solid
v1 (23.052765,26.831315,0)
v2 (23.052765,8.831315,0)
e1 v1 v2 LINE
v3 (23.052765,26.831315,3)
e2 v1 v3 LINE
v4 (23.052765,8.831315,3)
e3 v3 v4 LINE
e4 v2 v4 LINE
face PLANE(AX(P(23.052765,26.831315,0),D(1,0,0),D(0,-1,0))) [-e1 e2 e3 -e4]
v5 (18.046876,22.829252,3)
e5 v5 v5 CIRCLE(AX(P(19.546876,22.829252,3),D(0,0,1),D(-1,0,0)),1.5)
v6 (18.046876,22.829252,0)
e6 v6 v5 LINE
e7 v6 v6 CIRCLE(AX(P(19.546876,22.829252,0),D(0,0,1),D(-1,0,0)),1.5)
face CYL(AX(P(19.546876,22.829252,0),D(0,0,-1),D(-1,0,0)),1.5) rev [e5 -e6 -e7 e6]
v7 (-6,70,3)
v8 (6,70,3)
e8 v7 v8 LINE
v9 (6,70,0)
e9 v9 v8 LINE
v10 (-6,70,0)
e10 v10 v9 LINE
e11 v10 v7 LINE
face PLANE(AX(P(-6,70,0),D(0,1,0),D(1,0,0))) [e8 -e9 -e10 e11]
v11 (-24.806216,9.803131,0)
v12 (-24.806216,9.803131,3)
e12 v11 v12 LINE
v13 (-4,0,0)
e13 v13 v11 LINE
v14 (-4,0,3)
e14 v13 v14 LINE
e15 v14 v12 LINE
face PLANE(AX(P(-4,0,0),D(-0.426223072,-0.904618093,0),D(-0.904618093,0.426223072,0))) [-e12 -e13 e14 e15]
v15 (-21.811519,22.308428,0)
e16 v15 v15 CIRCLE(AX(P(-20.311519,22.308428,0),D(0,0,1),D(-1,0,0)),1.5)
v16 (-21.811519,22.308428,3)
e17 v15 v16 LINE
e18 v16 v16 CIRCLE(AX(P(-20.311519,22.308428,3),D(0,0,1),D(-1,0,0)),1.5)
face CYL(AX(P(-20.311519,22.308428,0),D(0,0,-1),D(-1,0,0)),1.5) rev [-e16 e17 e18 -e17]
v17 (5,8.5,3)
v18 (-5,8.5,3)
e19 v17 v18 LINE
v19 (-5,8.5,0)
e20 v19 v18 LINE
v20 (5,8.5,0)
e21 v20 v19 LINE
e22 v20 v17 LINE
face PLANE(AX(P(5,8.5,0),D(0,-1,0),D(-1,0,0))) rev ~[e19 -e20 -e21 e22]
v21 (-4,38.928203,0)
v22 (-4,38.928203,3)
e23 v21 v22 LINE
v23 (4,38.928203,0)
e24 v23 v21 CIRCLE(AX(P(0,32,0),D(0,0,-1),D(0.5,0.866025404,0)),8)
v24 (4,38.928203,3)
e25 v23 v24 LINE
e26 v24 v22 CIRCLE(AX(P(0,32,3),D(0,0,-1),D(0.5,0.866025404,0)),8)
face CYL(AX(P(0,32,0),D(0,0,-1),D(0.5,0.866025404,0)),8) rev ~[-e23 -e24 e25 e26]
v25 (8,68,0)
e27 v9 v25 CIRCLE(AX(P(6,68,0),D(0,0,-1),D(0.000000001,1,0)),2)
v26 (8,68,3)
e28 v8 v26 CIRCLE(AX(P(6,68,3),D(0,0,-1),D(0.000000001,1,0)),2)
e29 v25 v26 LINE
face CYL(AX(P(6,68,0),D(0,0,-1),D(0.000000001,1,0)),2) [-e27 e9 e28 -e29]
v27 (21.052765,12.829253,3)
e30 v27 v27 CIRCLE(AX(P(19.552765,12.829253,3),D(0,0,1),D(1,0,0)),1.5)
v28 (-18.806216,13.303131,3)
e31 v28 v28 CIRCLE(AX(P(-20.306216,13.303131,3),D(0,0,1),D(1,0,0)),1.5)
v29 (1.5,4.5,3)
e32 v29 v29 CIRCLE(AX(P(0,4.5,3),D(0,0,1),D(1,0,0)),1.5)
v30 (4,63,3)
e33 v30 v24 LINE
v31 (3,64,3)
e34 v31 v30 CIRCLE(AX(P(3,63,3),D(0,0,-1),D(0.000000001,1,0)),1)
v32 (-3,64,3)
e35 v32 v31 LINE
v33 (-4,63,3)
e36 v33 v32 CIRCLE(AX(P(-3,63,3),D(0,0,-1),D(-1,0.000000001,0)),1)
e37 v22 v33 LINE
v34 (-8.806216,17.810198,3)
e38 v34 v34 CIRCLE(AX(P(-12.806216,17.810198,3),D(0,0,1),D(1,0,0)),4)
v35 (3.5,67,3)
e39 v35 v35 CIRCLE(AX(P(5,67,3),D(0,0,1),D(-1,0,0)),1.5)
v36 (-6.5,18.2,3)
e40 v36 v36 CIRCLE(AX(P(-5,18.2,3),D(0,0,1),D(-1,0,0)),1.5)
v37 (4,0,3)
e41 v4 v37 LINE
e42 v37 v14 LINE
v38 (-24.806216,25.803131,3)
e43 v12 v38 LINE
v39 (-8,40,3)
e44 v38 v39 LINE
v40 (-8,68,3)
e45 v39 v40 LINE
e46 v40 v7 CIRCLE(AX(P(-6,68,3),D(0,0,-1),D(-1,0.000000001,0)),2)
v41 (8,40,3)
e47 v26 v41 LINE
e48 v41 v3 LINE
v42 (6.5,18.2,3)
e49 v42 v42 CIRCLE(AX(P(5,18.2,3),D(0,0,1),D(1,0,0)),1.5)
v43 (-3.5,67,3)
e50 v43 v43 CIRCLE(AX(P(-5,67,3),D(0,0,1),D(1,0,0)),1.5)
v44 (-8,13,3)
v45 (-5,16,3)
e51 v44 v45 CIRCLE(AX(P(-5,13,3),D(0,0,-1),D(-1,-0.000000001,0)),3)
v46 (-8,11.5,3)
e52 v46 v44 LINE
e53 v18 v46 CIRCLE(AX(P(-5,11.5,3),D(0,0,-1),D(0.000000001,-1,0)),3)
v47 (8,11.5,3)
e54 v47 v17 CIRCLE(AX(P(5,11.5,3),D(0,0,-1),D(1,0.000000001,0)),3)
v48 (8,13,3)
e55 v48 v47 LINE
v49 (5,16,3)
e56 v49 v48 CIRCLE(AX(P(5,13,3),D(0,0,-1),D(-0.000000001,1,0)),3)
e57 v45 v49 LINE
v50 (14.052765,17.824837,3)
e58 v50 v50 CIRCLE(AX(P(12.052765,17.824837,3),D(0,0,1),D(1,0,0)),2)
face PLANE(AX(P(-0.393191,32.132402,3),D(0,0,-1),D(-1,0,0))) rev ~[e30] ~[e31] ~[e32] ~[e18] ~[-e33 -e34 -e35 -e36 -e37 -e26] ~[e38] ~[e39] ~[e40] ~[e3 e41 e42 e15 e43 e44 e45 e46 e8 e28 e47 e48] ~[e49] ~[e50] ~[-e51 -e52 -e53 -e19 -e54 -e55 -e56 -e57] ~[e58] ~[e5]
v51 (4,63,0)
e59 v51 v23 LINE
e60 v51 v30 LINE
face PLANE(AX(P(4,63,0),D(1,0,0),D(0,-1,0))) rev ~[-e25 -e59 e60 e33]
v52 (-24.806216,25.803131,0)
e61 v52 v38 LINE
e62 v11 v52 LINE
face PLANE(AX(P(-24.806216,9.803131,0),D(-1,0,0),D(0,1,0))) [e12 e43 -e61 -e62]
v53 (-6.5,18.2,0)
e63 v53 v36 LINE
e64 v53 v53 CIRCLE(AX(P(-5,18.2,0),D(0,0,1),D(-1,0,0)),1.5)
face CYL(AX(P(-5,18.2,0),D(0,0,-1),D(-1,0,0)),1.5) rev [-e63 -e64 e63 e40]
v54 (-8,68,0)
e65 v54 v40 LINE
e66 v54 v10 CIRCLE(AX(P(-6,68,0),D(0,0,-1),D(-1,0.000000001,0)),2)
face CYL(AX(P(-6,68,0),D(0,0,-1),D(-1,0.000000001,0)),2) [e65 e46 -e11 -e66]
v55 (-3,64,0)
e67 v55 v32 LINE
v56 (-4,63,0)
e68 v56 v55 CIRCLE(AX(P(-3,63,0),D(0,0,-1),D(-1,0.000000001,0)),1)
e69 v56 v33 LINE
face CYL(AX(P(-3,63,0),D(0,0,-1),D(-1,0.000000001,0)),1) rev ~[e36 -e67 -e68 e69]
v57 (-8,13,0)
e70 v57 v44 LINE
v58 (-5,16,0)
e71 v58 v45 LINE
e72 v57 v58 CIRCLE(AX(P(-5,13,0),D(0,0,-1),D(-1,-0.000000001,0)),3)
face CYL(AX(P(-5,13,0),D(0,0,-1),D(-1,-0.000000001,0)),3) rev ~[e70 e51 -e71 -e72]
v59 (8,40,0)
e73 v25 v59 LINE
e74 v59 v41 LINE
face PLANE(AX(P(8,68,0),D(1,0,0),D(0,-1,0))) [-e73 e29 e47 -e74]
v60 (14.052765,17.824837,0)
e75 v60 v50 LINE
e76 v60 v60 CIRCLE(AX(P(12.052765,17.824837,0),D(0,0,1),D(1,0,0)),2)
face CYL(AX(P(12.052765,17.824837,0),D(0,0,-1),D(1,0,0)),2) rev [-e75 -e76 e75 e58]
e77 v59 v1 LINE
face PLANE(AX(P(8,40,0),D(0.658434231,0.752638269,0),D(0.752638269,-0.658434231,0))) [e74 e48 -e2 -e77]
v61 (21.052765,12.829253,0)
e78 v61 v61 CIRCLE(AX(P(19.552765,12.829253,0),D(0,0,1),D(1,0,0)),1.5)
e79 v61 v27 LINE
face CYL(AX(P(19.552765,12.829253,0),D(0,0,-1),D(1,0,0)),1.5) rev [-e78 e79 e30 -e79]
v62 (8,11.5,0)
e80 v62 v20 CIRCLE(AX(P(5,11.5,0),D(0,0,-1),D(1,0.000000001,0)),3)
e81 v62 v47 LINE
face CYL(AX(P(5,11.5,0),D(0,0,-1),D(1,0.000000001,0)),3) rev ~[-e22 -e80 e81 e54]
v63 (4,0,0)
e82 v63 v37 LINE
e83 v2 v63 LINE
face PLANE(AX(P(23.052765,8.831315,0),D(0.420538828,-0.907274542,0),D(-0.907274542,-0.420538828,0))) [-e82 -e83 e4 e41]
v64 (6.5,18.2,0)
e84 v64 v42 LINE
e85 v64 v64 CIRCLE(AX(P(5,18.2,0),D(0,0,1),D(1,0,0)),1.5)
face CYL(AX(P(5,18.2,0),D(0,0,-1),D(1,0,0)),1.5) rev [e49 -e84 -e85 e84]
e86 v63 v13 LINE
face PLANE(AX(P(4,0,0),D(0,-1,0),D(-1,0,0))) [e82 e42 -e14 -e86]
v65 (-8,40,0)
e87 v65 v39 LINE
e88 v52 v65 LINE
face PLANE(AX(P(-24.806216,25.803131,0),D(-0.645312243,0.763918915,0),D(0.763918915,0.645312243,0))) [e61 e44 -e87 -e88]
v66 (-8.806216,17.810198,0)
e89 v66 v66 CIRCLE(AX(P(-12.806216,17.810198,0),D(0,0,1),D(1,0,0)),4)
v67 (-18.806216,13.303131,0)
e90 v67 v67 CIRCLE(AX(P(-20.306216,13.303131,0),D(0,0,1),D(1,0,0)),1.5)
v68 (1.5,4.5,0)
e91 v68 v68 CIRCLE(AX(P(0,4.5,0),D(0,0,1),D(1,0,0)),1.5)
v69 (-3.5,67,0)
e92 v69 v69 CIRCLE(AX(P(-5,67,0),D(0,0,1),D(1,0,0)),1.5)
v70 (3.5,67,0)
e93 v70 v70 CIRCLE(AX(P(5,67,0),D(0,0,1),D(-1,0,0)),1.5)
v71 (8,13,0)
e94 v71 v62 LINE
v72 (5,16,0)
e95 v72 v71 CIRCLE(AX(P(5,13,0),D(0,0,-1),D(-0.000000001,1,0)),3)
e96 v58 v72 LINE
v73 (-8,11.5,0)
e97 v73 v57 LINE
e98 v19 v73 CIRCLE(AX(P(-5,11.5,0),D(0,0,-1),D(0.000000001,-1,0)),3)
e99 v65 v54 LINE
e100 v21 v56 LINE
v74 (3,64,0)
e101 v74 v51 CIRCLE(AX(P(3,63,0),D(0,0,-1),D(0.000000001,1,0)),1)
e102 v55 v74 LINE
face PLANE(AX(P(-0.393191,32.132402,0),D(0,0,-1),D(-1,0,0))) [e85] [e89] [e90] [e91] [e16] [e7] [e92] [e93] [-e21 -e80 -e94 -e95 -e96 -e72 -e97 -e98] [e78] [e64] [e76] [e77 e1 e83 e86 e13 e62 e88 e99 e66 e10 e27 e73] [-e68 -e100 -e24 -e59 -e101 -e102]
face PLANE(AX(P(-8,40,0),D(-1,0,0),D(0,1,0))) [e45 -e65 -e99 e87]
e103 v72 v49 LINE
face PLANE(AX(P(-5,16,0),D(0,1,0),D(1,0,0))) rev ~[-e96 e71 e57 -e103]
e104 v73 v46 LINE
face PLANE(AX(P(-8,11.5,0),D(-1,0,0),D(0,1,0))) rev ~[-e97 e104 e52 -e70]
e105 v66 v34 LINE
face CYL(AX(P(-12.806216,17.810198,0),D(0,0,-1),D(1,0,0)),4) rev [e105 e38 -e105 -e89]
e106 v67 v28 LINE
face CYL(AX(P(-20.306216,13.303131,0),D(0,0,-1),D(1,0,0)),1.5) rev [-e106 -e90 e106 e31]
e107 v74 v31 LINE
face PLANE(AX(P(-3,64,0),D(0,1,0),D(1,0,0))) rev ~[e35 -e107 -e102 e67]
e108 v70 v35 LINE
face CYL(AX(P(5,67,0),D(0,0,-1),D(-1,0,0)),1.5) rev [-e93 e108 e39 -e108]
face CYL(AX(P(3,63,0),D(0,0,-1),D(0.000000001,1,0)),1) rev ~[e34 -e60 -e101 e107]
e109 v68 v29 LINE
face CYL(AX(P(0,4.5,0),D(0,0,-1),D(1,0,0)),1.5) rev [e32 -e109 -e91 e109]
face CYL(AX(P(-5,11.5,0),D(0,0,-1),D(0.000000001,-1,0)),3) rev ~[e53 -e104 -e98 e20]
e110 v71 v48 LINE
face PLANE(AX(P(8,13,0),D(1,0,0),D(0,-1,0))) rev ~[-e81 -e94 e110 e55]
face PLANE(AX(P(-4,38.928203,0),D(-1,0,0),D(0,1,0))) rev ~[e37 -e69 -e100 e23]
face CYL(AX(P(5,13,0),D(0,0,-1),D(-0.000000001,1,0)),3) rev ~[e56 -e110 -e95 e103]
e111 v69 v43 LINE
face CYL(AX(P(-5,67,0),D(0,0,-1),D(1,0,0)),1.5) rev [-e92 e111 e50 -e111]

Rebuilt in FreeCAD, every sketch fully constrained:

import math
import FreeCAD as App
import Part
import Sketcher
Q = App.Units.Quantity

doc = App.newDocument("Part")
params = doc.addObject("Spreadsheet::Sheet", "Params")
for row, (alias, value) in enumerate([
    ("sketch1_diameter", "3 mm"),
    ("sketch1_diameter2", "4 mm"),
    ("sketch1_diameter3", "8 mm"),
    ("sketch1_radius", "3 mm"),
    ("sketch1_radius2", "1 mm"),
    ("pad1_length", "3 mm"),
], start=1):
    params.set(f"A{row}", alias)
    params.set(f"B{row}", "=" + value)
    params.setAlias(f"B{row}", alias)

body = doc.addObject("PartDesign::Body", "Body")

# Sketch on XY plane
sketch1 = body.newObject("Sketcher::SketchObject", "Sketch")
sketch1.AttachmentSupport = (doc.getObject("XY_Plane"), [""])
sketch1.MapMode = "FlatFace"
sketch1.addGeometry([
    Part.LineSegment(App.Vector(6, 70, 0), App.Vector(-6, 70, 0)),  # 0
    Part.ArcOfCircle(Part.Circle(App.Vector(-6, 68, 0), App.Vector(0, 0, 1), 2), math.radians(90), math.radians(180)),  # 1
    Part.LineSegment(App.Vector(-8, 68, 0), App.Vector(-8, 40, 0)),  # 2
    Part.LineSegment(App.Vector(-8, 40, 0), App.Vector(-24.806216, 25.803131, 0)),  # 3
    Part.LineSegment(App.Vector(-24.806216, 25.803131, 0), App.Vector(-24.806216, 9.803131, 0)),  # 4
    Part.LineSegment(App.Vector(-24.806216, 9.803131, 0), App.Vector(-4, 0, 0)),  # 5
    Part.LineSegment(App.Vector(-4, 0, 0), App.Vector(4, 0, 0)),  # 6
    Part.LineSegment(App.Vector(4, 0, 0), App.Vector(23.052765, 8.831315, 0)),  # 7
    Part.LineSegment(App.Vector(23.052765, 8.831315, 0), App.Vector(23.052765, 26.831315, 0)),  # 8
    Part.LineSegment(App.Vector(23.052765, 26.831315, 0), App.Vector(8, 40, 0)),  # 9
    Part.LineSegment(App.Vector(8, 40, 0), App.Vector(8, 68, 0)),  # 10
    Part.ArcOfCircle(Part.Circle(App.Vector(6, 68, 0), App.Vector(0, 0, 1), 2), math.radians(0), math.radians(90)),  # 11
    Part.Circle(App.Vector(19.552765, 12.829253, 0), App.Vector(0, 0, 1), 1.5),  # 12
    Part.Circle(App.Vector(12.052765, 17.824837, 0), App.Vector(0, 0, 1), 2),  # 13
    Part.Circle(App.Vector(0, 4.5, 0), App.Vector(0, 0, 1), 1.5),  # 14
    Part.Circle(App.Vector(5, 18.2, 0), App.Vector(0, 0, 1), 1.5),  # 15
    Part.LineSegment(App.Vector(-5, 16, 0), App.Vector(5, 16, 0)),  # 16
    Part.ArcOfCircle(Part.Circle(App.Vector(5, 13, 0), App.Vector(0, 0, 1), 3), math.radians(0), math.radians(90)),  # 17
    Part.LineSegment(App.Vector(8, 13, 0), App.Vector(8, 11.5, 0)),  # 18
    Part.ArcOfCircle(Part.Circle(App.Vector(5, 11.5, 0), App.Vector(0, 0, 1), 3), math.radians(-90), math.radians(0)),  # 19
    Part.LineSegment(App.Vector(5, 8.5, 0), App.Vector(-5, 8.5, 0)),  # 20
    Part.ArcOfCircle(Part.Circle(App.Vector(-5, 11.5, 0), App.Vector(0, 0, 1), 3), math.radians(180), math.radians(270)),  # 21
    Part.LineSegment(App.Vector(-8, 11.5, 0), App.Vector(-8, 13, 0)),  # 22
    Part.ArcOfCircle(Part.Circle(App.Vector(-5, 13, 0), App.Vector(0, 0, 1), 3), math.radians(90), math.radians(180)),  # 23
    Part.Circle(App.Vector(19.546876, 22.829252, 0), App.Vector(0, 0, 1), 1.5),  # 24
    Part.Circle(App.Vector(-5, 18.2, 0), App.Vector(0, 0, 1), 1.5),  # 25
    Part.Circle(App.Vector(-12.806216, 17.810198, 0), App.Vector(0, 0, 1), 4),  # 26
    Part.Circle(App.Vector(-20.306216, 13.303131, 0), App.Vector(0, 0, 1), 1.5),  # 27
    Part.Circle(App.Vector(-20.311519, 22.308428, 0), App.Vector(0, 0, 1), 1.5),  # 28
    Part.LineSegment(App.Vector(-3, 64, 0), App.Vector(3, 64, 0)),  # 29
    Part.ArcOfCircle(Part.Circle(App.Vector(3, 63, 0), App.Vector(0, 0, 1), 1), math.radians(0), math.radians(90)),  # 30
    Part.LineSegment(App.Vector(4, 63, 0), App.Vector(4, 38.928203, 0)),  # 31
    Part.ArcOfCircle(Part.Circle(App.Vector(0, 32, 0), App.Vector(0, 0, 1), 8), math.radians(120), math.radians(420)),  # 32
    Part.LineSegment(App.Vector(-4, 38.928203, 0), App.Vector(-4, 63, 0)),  # 33
    Part.ArcOfCircle(Part.Circle(App.Vector(-3, 63, 0), App.Vector(0, 0, 1), 1), math.radians(90), math.radians(180)),  # 34
    Part.Circle(App.Vector(5, 67, 0), App.Vector(0, 0, 1), 1.5),  # 35
    Part.Circle(App.Vector(-5, 67, 0), App.Vector(0, 0, 1), 1.5),  # 36
], False)
sketch1.addConstraint([
    Sketcher.Constraint("Tangent", 0, 2, 1, 1),
    Sketcher.Constraint("Tangent", 1, 2, 2, 1),
    Sketcher.Constraint("Coincident", 2, 2, 3, 1),
    Sketcher.Constraint("Coincident", 3, 2, 4, 1),
    Sketcher.Constraint("Coincident", 4, 2, 5, 1),
    Sketcher.Constraint("Coincident", 5, 2, 6, 1),
    Sketcher.Constraint("Coincident", 6, 2, 7, 1),
    Sketcher.Constraint("Coincident", 7, 2, 8, 1),
    Sketcher.Constraint("Coincident", 8, 2, 9, 1),
    Sketcher.Constraint("Coincident", 9, 2, 10, 1),
    Sketcher.Constraint("Tangent", 10, 2, 11, 1),
    Sketcher.Constraint("Tangent", 11, 2, 0, 1),
    Sketcher.Constraint("Tangent", 16, 2, 17, 2),
    Sketcher.Constraint("Tangent", 17, 1, 18, 1),
    Sketcher.Constraint("Tangent", 18, 2, 19, 2),
    Sketcher.Constraint("Tangent", 19, 1, 20, 1),
    Sketcher.Constraint("Tangent", 20, 2, 21, 2),
    Sketcher.Constraint("Tangent", 21, 1, 22, 1),
    Sketcher.Constraint("Tangent", 22, 2, 23, 2),
    Sketcher.Constraint("Tangent", 23, 1, 16, 1),
    Sketcher.Constraint("Tangent", 29, 2, 30, 2),
    Sketcher.Constraint("Tangent", 30, 1, 31, 1),
    Sketcher.Constraint("Coincident", 31, 2, 32, 2),
    Sketcher.Constraint("Coincident", 32, 1, 33, 1),
    Sketcher.Constraint("Tangent", 33, 2, 34, 2),
    Sketcher.Constraint("Tangent", 34, 1, 29, 1),
    Sketcher.Constraint("Horizontal", 0),
    Sketcher.Constraint("Vertical", 2),
    Sketcher.Constraint("Vertical", 4),
    Sketcher.Constraint("Horizontal", 6),
    Sketcher.Constraint("Vertical", 8),
    Sketcher.Constraint("Vertical", 10),
    Sketcher.Constraint("Horizontal", 16),
    Sketcher.Constraint("Vertical", 18),
    Sketcher.Constraint("Horizontal", 20),
    Sketcher.Constraint("Vertical", 22),
    Sketcher.Constraint("Horizontal", 29),
    Sketcher.Constraint("Vertical", 31),
    Sketcher.Constraint("Vertical", 33),
    Sketcher.Constraint("Equal", 1, 11),
    Sketcher.Constraint("Equal", 11, 13),
    Sketcher.Constraint("Equal", 12, 14),
    Sketcher.Constraint("Equal", 14, 15),
    Sketcher.Constraint("Equal", 17, 19),
    Sketcher.Constraint("Equal", 19, 21),
    Sketcher.Constraint("Equal", 21, 23),
    Sketcher.Constraint("Equal", 15, 24),
    Sketcher.Constraint("Equal", 24, 25),
    Sketcher.Constraint("Equal", 25, 27),
    Sketcher.Constraint("Equal", 27, 28),
    Sketcher.Constraint("Equal", 30, 34),
    Sketcher.Constraint("Equal", 28, 35),
    Sketcher.Constraint("Equal", 35, 36),
    Sketcher.Constraint("Symmetric", 5, 2, 6, 2, -1, 1),
    Sketcher.Constraint("Symmetric", 15, 3, 25, 3, -2),
    Sketcher.Constraint("Symmetric", 35, 3, 36, 3, -2),
    Sketcher.Constraint("Symmetric", 2, 2, 9, 2, -2),
    Sketcher.Constraint("Symmetric", 31, 2, 32, 1, -2),
    Sketcher.Constraint("PointOnObject", 14, 3, -2),
    Sketcher.Constraint("Vertical", 15, 3, 17, 3),
    Sketcher.Constraint("Vertical", 23, 3, 25, 3),
    Sketcher.Constraint("Vertical", 19, 3, 35, 3),
    Sketcher.Constraint("Vertical", 10, 2, 17, 1),
    Sketcher.Constraint("Vertical", 6, 2, 30, 1),
    Sketcher.Constraint("Diameter", 12, Q("3 mm")),
    Sketcher.Constraint("Diameter", 13, Q("4 mm")),
    Sketcher.Constraint("Diameter", 26, Q("8 mm")),
    Sketcher.Constraint("Radius", 17, Q("3 mm")),
    Sketcher.Constraint("Radius", 30, Q("1 mm")),
    Sketcher.Constraint("Radius", 32, Q("8 mm")),
    Sketcher.Constraint("DistanceX", 0, 2, 0, 1, Q("12 mm")),
    Sketcher.Constraint("DistanceX", 6, 1, 6, 2, Q("8 mm")),
    Sketcher.Constraint("DistanceY", 2, 2, 2, 1, Q("28 mm")),
    Sketcher.Constraint("DistanceY", 4, 2, 4, 1, Q("16 mm")),
    Sketcher.Constraint("DistanceY", 8, 1, 8, 2, Q("18 mm")),
    Sketcher.Constraint("Distance", 3, Q("22 mm")),
    Sketcher.Constraint("Distance", 5, Q("23 mm")),
    Sketcher.Constraint("Distance", 7, Q("21 mm")),
    Sketcher.Constraint("Distance", 9, Q("20 mm")),
    Sketcher.Constraint("DistanceY", 18, 2, 18, 1, Q("1.5 mm")),
    Sketcher.Constraint("DistanceY", -1, 1, 1, 3, Q("68 mm")),
    Sketcher.Constraint("DistanceY", -1, 1, 17, 3, Q("13 mm")),
    Sketcher.Constraint("DistanceY", -1, 1, 30, 3, Q("63 mm")),
    Sketcher.Constraint("DistanceY", -1, 1, 32, 3, Q("32 mm")),
    Sketcher.Constraint("DistanceY", -1, 1, 35, 3, Q("67 mm")),
    Sketcher.Constraint("DistanceY", 14, 3, 19, 3, Q("7 mm")),
    Sketcher.Constraint("DistanceY", 12, 3, 24, 3, Q("9.999998 mm")),
    Sketcher.Constraint("DistanceX", 3, 2, 26, 3, Q("12 mm")),
    Sketcher.Constraint("DistanceX", 13, 3, 7, 2, Q("11 mm")),
    Sketcher.Constraint("DistanceY", -1, 1, 15, 3, Q("18.2 mm")),
    Sketcher.Constraint("DistanceX", 13, 3, 12, 3, Q("7.5 mm")),
    Sketcher.Constraint("DistanceX", 27, 3, 26, 3, Q("7.5 mm")),
    Sketcher.Constraint("DistanceY", 27, 3, 3, 2, Q("12.5 mm")),
    Sketcher.Constraint("DistanceY", -1, 1, 24, 3, Q("22.829252 mm")),
    Sketcher.Constraint("DistanceX", 28, 3, -1, 1, Q("20.311519 mm")),
    Sketcher.Constraint("DistanceX", 13, 3, 24, 3, Q("7.494111 mm")),
    Sketcher.Constraint("DistanceY", 26, 3, 28, 3, Q("4.49823 mm")),
    Sketcher.Constraint("DistanceY", 7, 2, 13, 3, Q("8.993522 mm")),
    Sketcher.Constraint("DistanceY", -1, 1, 26, 3, Q("17.810198 mm")),
])
sketch1.setExpression("Constraints[64]", "Params.sketch1_diameter")
sketch1.setExpression("Constraints[65]", "Params.sketch1_diameter2")
sketch1.setExpression("Constraints[66]", "Params.sketch1_diameter3")
sketch1.setExpression("Constraints[67]", "Params.sketch1_radius")
sketch1.setExpression("Constraints[68]", "Params.sketch1_radius2")
pad1 = body.newObject("PartDesign::Pad", "Pad")
pad1.Profile = sketch1
pad1.setExpression("Length", "Params.pad1_length")

doc.recompute()
